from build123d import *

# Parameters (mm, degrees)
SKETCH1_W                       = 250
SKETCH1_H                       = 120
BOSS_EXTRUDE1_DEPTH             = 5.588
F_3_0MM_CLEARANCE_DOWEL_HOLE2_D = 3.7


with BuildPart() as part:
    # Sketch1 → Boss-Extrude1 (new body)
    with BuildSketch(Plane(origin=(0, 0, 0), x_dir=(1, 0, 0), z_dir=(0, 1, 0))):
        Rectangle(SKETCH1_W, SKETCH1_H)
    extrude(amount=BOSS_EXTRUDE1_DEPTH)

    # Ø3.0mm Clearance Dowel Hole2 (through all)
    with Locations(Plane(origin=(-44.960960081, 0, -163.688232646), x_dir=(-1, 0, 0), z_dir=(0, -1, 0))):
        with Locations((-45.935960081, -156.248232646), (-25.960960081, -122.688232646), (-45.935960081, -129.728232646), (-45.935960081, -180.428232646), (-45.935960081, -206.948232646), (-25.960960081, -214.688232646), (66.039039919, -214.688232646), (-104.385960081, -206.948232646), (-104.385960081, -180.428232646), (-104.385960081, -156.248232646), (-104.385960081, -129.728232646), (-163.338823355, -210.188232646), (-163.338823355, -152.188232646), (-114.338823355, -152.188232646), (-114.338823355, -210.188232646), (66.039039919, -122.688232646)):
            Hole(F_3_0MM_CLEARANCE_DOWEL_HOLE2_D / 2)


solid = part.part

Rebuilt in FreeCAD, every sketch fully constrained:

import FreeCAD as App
import Part
import Sketcher

V = App.Vector


def add_polygon(sketch, points):
    """Adds a closed chain of lines whose ends are joined by coincident constraints."""
    first, n = sketch.GeometryCount, len(points)
    for a, b in zip(points, points[1:] + points[:1]):
        sketch.addGeometry(Part.LineSegment(App.Vector(*a, 0), App.Vector(*b, 0)), False)
    for i in range(n):
        sketch.addConstraint(Sketcher.Constraint("Coincident", first + i, 2, first + (i + 1) % n, 1))

doc = App.newDocument("Part")
body = doc.addObject("PartDesign::Body", "Body")

sketch1 = body.newObject("Sketcher::SketchObject", "Sketch")
sketch1.AttachmentSupport = (doc.getObject("XZ_Plane"), [""])
sketch1.MapMode = "FlatFace"
add_polygon(sketch1, [(-125, -60), (-125, 60), (125, 60), (125, -60)])
sketch1.addConstraint([
    Sketcher.Constraint("Vertical", 0),
    Sketcher.Constraint("Horizontal", 1),
    Sketcher.Constraint("Vertical", 2),
    Sketcher.Constraint("Horizontal", 3),
    Sketcher.Constraint("Symmetric", 0, 2, 2, 2, -1, 1),
    Sketcher.Constraint("DistanceX", 1, 1, 1, 2, 250.0),
    Sketcher.Constraint("DistanceY", 0, 1, 0, 2, 120.0),
])
pad1 = body.newObject("PartDesign::Pad", "Pad")
pad1.Profile = sketch1
pad1.Length = 5.588
pad1.Reversed = True

sketch2 = body.newObject("Sketcher::SketchObject", "Sketch001")
sketch2.AttachmentSupport = (doc.getObject("XZ_Plane"), [""])
sketch2.MapMode = "FlatFace"
sketch2.addGeometry([
    Part.Circle(V(1, -7.4, 0), V(0, 0, 1), 1.9),
    Part.Circle(V(-19, -41, 0), V(0, 0, 1), 1.9),
    Part.Circle(V(1, -34, 0), V(0, 0, 1), 1.9),
    Part.Circle(V(1, 16.7, 0), V(0, 0, 1), 1.9),
    Part.Circle(V(1, 43.3, 0), V(0, 0, 1), 1.9),
    Part.Circle(V(-19, 51, 0), V(0, 0, 1), 1.9),
    Part.Circle(V(-111, 51, 0), V(0, 0, 1), 1.9),
    Part.Circle(V(59.4, 43.3, 0), V(0, 0, 1), 1.9),
    Part.Circle(V(59.4, 16.7, 0), V(0, 0, 1), 1.9),
    Part.Circle(V(59.4, -7.4, 0), V(0, 0, 1), 1.9),
    Part.Circle(V(59.4, -34, 0), V(0, 0, 1), 1.9),
    Part.Circle(V(118.4, 46.5, 0), V(0, 0, 1), 1.9),
    Part.Circle(V(118.4, -11.5, 0), V(0, 0, 1), 1.9),
    Part.Circle(V(69.4, -11.5, 0), V(0, 0, 1), 1.9),
    Part.Circle(V(69.4, 46.5, 0), V(0, 0, 1), 1.9),
    Part.Circle(V(-111, -41, 0), V(0, 0, 1), 1.9),
], False)
sketch2.addConstraint([
    Sketcher.Constraint("Equal", 0, 1),
    Sketcher.Constraint("Equal", 1, 2),
    Sketcher.Constraint("Equal", 2, 3),
    Sketcher.Constraint("Equal", 3, 4),
    Sketcher.Constraint("Equal", 4, 5),
    Sketcher.Constraint("Equal", 5, 6),
    Sketcher.Constraint("Equal", 6, 7),
    Sketcher.Constraint("Equal", 7, 8),
    Sketcher.Constraint("Equal", 8, 9),
    Sketcher.Constraint("Equal", 9, 10),
    Sketcher.Constraint("Equal", 10, 11),
    Sketcher.Constraint("Equal", 11, 12),
    Sketcher.Constraint("Equal", 12, 13),
    Sketcher.Constraint("Equal", 13, 14),
    Sketcher.Constraint("Equal", 14, 15),
    Sketcher.Constraint("Horizontal", 5, 3, 6, 3),
    Sketcher.Constraint("Horizontal", 4, 3, 7, 3),
    Sketcher.Constraint("Horizontal", 3, 3, 8, 3),
    Sketcher.Constraint("Horizontal", 0, 3, 9, 3),
    Sketcher.Constraint("Horizontal", 2, 3, 10, 3),
    Sketcher.Constraint("Horizontal", 12, 3, 13, 3),
    Sketcher.Constraint("Horizontal", 11, 3, 14, 3),
    Sketcher.Constraint("Horizontal", 1, 3, 15, 3),
    Sketcher.Constraint("Vertical", 0, 3, 2, 3),
    Sketcher.Constraint("Vertical", 2, 3, 3, 3),
    Sketcher.Constraint("Vertical", 3, 3, 4, 3),
    Sketcher.Constraint("Vertical", 1, 3, 5, 3),
    Sketcher.Constraint("Vertical", 7, 3, 8, 3),
    Sketcher.Constraint("Vertical", 8, 3, 9, 3),
    Sketcher.Constraint("Vertical", 9, 3, 10, 3),
    Sketcher.Constraint("Vertical", 11, 3, 12, 3),
    Sketcher.Constraint("Vertical", 13, 3, 14, 3),
    Sketcher.Constraint("Vertical", 6, 3, 15, 3),
    Sketcher.Constraint("Diameter", 0, 3.7),
    Sketcher.Constraint("DistanceX", 1, 3, -1, 1, 19.0),
    Sketcher.Constraint("DistanceY", 1, 3, -1, 1, 41.0),
    Sketcher.Constraint("DistanceY", -1, 1, 5, 3, 51.0),
    Sketcher.Constraint("DistanceX", 6, 3, -1, 1, 111.0),
    Sketcher.Constraint("DistanceY", 12, 3, 11, 3, 58.0),
    Sketcher.Constraint("DistanceX", 13, 3, 12, 3, 49.0),
    Sketcher.Constraint("DistanceY", -1, 1, 11, 3, 46.5),
    Sketcher.Constraint("DistanceY", 2, 3, 3, 3, 50.7),
    Sketcher.Constraint("DistanceY", 0, 3, 4, 3, 50.7),
    Sketcher.Constraint("DistanceY", 0, 3, -1, 1, 7.44),
    Sketcher.Constraint("DistanceY", 2, 3, -1, 1, 33.96),
    Sketcher.Constraint("DistanceX", 4, 3, 7, 3, 58.45),
    Sketcher.Constraint("DistanceX", -1, 1, 0, 3, 0.975),
    Sketcher.Constraint("DistanceX", -1, 1, 11, 3, 118.377863),
])
doc.recompute()
hole = body.newObject("PartDesign::Hole", "Hole")
hole.Profile = sketch2
hole.ThreadType = "None"
hole.Diameter = 3.7
hole.DepthType = "ThroughAll"

doc.recompute()
